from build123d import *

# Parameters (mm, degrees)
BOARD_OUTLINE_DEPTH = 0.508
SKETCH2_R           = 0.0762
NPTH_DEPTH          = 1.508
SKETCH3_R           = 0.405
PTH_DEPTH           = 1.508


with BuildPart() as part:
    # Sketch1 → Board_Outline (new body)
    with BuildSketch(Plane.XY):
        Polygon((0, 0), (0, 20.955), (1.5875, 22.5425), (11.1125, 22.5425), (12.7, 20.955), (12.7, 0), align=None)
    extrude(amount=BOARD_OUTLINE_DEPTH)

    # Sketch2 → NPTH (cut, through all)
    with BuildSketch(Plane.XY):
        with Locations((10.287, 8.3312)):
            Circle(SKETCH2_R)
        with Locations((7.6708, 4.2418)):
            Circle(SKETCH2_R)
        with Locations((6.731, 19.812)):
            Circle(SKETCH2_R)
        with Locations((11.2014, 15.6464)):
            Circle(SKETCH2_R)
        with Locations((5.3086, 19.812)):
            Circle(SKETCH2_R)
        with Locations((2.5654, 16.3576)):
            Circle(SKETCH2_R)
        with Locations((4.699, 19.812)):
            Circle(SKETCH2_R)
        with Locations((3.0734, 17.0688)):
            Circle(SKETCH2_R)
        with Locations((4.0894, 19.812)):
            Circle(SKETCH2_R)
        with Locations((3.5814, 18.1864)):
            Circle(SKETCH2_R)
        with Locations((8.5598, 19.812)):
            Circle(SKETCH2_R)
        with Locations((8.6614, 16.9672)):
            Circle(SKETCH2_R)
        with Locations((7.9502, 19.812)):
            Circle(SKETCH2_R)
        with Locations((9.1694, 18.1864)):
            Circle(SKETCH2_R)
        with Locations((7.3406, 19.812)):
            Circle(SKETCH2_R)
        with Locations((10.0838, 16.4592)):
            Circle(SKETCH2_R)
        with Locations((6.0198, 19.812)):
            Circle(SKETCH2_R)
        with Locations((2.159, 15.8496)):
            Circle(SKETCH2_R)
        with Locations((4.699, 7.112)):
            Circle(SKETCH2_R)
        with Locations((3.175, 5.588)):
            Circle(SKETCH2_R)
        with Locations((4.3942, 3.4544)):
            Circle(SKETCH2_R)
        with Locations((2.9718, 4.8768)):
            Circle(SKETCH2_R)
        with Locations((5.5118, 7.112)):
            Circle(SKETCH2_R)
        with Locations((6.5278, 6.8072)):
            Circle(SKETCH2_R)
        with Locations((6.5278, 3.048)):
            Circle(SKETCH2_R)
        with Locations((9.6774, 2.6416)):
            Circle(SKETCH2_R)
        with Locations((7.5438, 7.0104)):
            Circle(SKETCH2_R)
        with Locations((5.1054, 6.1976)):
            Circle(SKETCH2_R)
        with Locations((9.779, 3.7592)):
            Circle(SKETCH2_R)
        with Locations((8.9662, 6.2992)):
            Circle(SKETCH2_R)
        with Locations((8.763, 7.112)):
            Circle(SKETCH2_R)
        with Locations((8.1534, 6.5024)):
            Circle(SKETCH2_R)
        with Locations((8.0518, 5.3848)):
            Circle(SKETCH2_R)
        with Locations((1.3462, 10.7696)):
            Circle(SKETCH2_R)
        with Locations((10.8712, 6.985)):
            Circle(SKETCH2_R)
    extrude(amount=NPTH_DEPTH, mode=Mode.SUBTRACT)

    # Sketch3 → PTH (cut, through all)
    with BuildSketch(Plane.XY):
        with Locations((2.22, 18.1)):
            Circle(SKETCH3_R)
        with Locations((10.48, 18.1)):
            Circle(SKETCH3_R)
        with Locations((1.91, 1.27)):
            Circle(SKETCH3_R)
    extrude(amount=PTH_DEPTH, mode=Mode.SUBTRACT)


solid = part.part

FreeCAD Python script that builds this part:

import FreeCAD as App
import Part
import Sketcher
from FreeCAD import Vector
Q = App.Units.Quantity


def add_polygon(sketch, points):
    """Adds a closed chain of lines whose ends are joined by coincident constraints."""
    first, n = sketch.GeometryCount, len(points)
    for a, b in zip(points, points[1:] + points[:1]):
        sketch.addGeometry(Part.LineSegment(App.Vector(*a, 0), App.Vector(*b, 0)), False)
    for i in range(n):
        sketch.addConstraint(Sketcher.Constraint("Coincident", first + i, 2, first + (i + 1) % n, 1))

doc = App.newDocument("Part")
params = doc.addObject("Spreadsheet::Sheet", "Params")
for row, (alias, value) in enumerate([
    ("sketch1_width", "0.5 in"),
    ("sketch1_width2", "0.375 in"),
    ("sketch1_height", "0.825 in"),
    ("pad1_length", "0.02 in"),
    ("sketch2_diameter", "0.006 in"),
], start=1):
    params.set(f"A{row}", alias)
    params.set(f"B{row}", "=" + value)
    params.setAlias(f"B{row}", alias)

body = doc.addObject("PartDesign::Body", "Body")

# Sketch on XY plane
sketch1 = body.newObject("Sketcher::SketchObject", "Sketch")
sketch1.AttachmentSupport = (doc.getObject("XY_Plane"), [""])
sketch1.MapMode = "FlatFace"
add_polygon(sketch1, [(0, 21), (0, 0), (12.7, 0), (12.7, 21), (11.1, 22.5), (1.6, 22.5)])  # lines 0-5
sketch1.addConstraint(Sketcher.Constraint("Vertical", 0))
sketch1.addConstraint(Sketcher.Constraint("Horizontal", 1))
sketch1.addConstraint(Sketcher.Constraint("Vertical", 2))
sketch1.addConstraint(Sketcher.Constraint("Horizontal", 4))
sketch1.addConstraint(Sketcher.Constraint("Coincident", 0, 2, -1, 1))
sketch1.addConstraint(Sketcher.Constraint("Perpendicular", 3, 5))
sketch1.addConstraint(Sketcher.Constraint("Horizontal", 2, 2, 5, 2))
sketch1.addConstraint(Sketcher.Constraint("Equal", 3, 5))
sketch1.addConstraint(Sketcher.Constraint("DistanceX", 1, 1, 1, 2, Q("0.5 in")))
sketch1.addConstraint(Sketcher.Constraint("DistanceX", 4, 2, 4, 1, Q("0.375 in")))
sketch1.addConstraint(Sketcher.Constraint("DistanceY", 0, 2, 0, 1, Q("0.825 in")))
sketch1.setExpression("Constraints[14]", "Params.sketch1_width")
sketch1.setExpression("Constraints[15]", "Params.sketch1_width2")
sketch1.setExpression("Constraints[16]", "Params.sketch1_height")
pad1 = body.newObject("PartDesign::Pad", "Pad")
pad1.Profile = sketch1
pad1.setExpression("Length", "Params.pad1_length")

# Sketch on XY plane
sketch2 = body.newObject("Sketcher::SketchObject", "Sketch001")
sketch2.AttachmentSupport = (doc.getObject("XY_Plane"), [""])
sketch2.MapMode = "FlatFace"
sketch2.addGeometry(Part.Circle(Vector(10.29, 8.33, 0), Vector(0, 0, 1), 0.08), False)
sketch2.addGeometry(Part.Circle(Vector(7.67, 4.24, 0), Vector(0, 0, 1), 0.08), False)
sketch2.addGeometry(Part.Circle(Vector(6.73, 19.81, 0), Vector(0, 0, 1), 0.08), False)
sketch2.addGeometry(Part.Circle(Vector(11.2, 15.65, 0), Vector(0, 0, 1), 0.08), False)
sketch2.addGeometry(Part.Circle(Vector(5.31, 19.81, 0), Vector(0, 0, 1), 0.08), False)
sketch2.addGeometry(Part.Circle(Vector(2.57, 16.36, 0), Vector(0, 0, 1), 0.08), False)
sketch2.addGeometry(Part.Circle(Vector(4.7, 19.81, 0), Vector(0, 0, 1), 0.08), False)
sketch2.addGeometry(Part.Circle(Vector(3.07, 17.07, 0), Vector(0, 0, 1), 0.08), False)
sketch2.addGeometry(Part.Circle(Vector(4.09, 19.81, 0), Vector(0, 0, 1), 0.08), False)
sketch2.addGeometry(Part.Circle(Vector(3.58, 18.19, 0), Vector(0, 0, 1), 0.08), False)
sketch2.addGeometry(Part.Circle(Vector(8.56, 19.81, 0), Vector(0, 0, 1), 0.08), False)
sketch2.addGeometry(Part.Circle(Vector(8.66, 16.97, 0), Vector(0, 0, 1), 0.08), False)
sketch2.addGeometry(Part.Circle(Vector(7.95, 19.81, 0), Vector(0, 0, 1), 0.08), False)
sketch2.addGeometry(Part.Circle(Vector(9.17, 18.19, 0), Vector(0, 0, 1), 0.08), False)
sketch2.addGeometry(Part.Circle(Vector(7.34, 19.81, 0), Vector(0, 0, 1), 0.08), False)
sketch2.addGeometry(Part.Circle(Vector(10.08, 16.46, 0), Vector(0, 0, 1), 0.08), False)
sketch2.addGeometry(Part.Circle(Vector(6.02, 19.81, 0), Vector(0, 0, 1), 0.08), False)
sketch2.addGeometry(Part.Circle(Vector(2.16, 15.85, 0), Vector(0, 0, 1), 0.08), False)
sketch2.addGeometry(Part.Circle(Vector(4.7, 7.11, 0), Vector(0, 0, 1), 0.08), False)
sketch2.addGeometry(Part.Circle(Vector(3.17, 5.59, 0), Vector(0, 0, 1), 0.08), False)
sketch2.addGeometry(Part.Circle(Vector(4.39, 3.45, 0), Vector(0, 0, 1), 0.08), False)
sketch2.addGeometry(Part.Circle(Vector(2.97, 4.88, 0), Vector(0, 0, 1), 0.08), False)
sketch2.addGeometry(Part.Circle(Vector(5.51, 7.11, 0), Vector(0, 0, 1), 0.08), False)
sketch2.addGeometry(Part.Circle(Vector(6.53, 6.81, 0), Vector(0, 0, 1), 0.08), False)
sketch2.addGeometry(Part.Circle(Vector(6.53, 3.05, 0), Vector(0, 0, 1), 0.08), False)
sketch2.addGeometry(Part.Circle(Vector(9.68, 2.64, 0), Vector(0, 0, 1), 0.08), False)
sketch2.addGeometry(Part.Circle(Vector(7.54, 7.01, 0), Vector(0, 0, 1), 0.08), False)
sketch2.addGeometry(Part.Circle(Vector(5.11, 6.2, 0), Vector(0, 0, 1), 0.08), False)
sketch2.addGeometry(Part.Circle(Vector(9.78, 3.76, 0), Vector(0, 0, 1), 0.08), False)
sketch2.addGeometry(Part.Circle(Vector(8.97, 6.3, 0), Vector(0, 0, 1), 0.08), False)
sketch2.addGeometry(Part.Circle(Vector(8.76, 7.11, 0), Vector(0, 0, 1), 0.08), False)
sketch2.addGeometry(Part.Circle(Vector(8.15, 6.5, 0), Vector(0, 0, 1), 0.08), False)
sketch2.addGeometry(Part.Circle(Vector(8.05, 5.38, 0), Vector(0, 0, 1), 0.08), False)
sketch2.addGeometry(Part.Circle(Vector(1.35, 10.77, 0), Vector(0, 0, 1), 0.08), False)
sketch2.addGeometry(Part.Circle(Vector(10.87, 6.99, 0), Vector(0, 0, 1), 0.08), False)
sketch2.addConstraint(Sketcher.Constraint("Equal", 0, 1))
sketch2.addConstraint(Sketcher.Constraint("Equal", 1, 2))
sketch2.addConstraint(Sketcher.Constraint("Equal", 2, 3))
sketch2.addConstraint(Sketcher.Constraint("Equal", 3, 4))
sketch2.addConstraint(Sketcher.Constraint("Equal", 4, 5))
sketch2.addConstraint(Sketcher.Constraint("Equal", 5, 6))
sketch2.addConstraint(Sketcher.Constraint("Equal", 6, 7))
sketch2.addConstraint(Sketcher.Constraint("Equal", 7, 8))
sketch2.addConstraint(Sketcher.Constraint("Equal", 8, 9))
sketch2.addConstraint(Sketcher.Constraint("Equal", 9, 10))
sketch2.addConstraint(Sketcher.Constraint("Equal", 10, 11))
sketch2.addConstraint(Sketcher.Constraint("Equal", 11, 12))
sketch2.addConstraint(Sketcher.Constraint("Equal", 12, 13))
sketch2.addConstraint(Sketcher.Constraint("Equal", 13, 14))
sketch2.addConstraint(Sketcher.Constraint("Equal", 14, 15))
sketch2.addConstraint(Sketcher.Constraint("Equal", 15, 16))
sketch2.addConstraint(Sketcher.Constraint("Equal", 16, 17))
sketch2.addConstraint(Sketcher.Constraint("Equal", 17, 18))
sketch2.addConstraint(Sketcher.Constraint("Equal", 18, 19))
sketch2.addConstraint(Sketcher.Constraint("Equal", 19, 20))
sketch2.addConstraint(Sketcher.Constraint("Equal", 20, 21))
sketch2.addConstraint(Sketcher.Constraint("Equal", 21, 22))
sketch2.addConstraint(Sketcher.Constraint("Equal", 22, 23))
sketch2.addConstraint(Sketcher.Constraint("Equal", 23, 24))
sketch2.addConstraint(Sketcher.Constraint("Equal", 24, 25))
sketch2.addConstraint(Sketcher.Constraint("Equal", 25, 26))
sketch2.addConstraint(Sketcher.Constraint("Equal", 26, 27))
sketch2.addConstraint(Sketcher.Constraint("Equal", 27, 28))
sketch2.addConstraint(Sketcher.Constraint("Equal", 28, 29))
sketch2.addConstraint(Sketcher.Constraint("Equal", 29, 30))
sketch2.addConstraint(Sketcher.Constraint("Equal", 30, 31))
sketch2.addConstraint(Sketcher.Constraint("Equal", 31, 32))
sketch2.addConstraint(Sketcher.Constraint("Equal", 32, 33))
sketch2.addConstraint(Sketcher.Constraint("Equal", 33, 34))
sketch2.addConstraint(Sketcher.Constraint("Horizontal", 2, 3, 4, 3))
sketch2.addConstraint(Sketcher.Constraint("Horizontal", 4, 3, 6, 3))
sketch2.addConstraint(Sketcher.Constraint("Horizontal", 6, 3, 8, 3))
sketch2.addConstraint(Sketcher.Constraint("Horizontal", 8, 3, 10, 3))
sketch2.addConstraint(Sketcher.Constraint("Horizontal", 10, 3, 12, 3))
sketch2.addConstraint(Sketcher.Constraint("Horizontal", 9, 3, 13, 3))
sketch2.addConstraint(Sketcher.Constraint("Horizontal", 12, 3, 14, 3))
sketch2.addConstraint(Sketcher.Constraint("Horizontal", 14, 3, 16, 3))
sketch2.addConstraint(Sketcher.Constraint("Horizontal", 18, 3, 22, 3))
sketch2.addConstraint(Sketcher.Constraint("Horizontal", 22, 3, 30, 3))
sketch2.addConstraint(Sketcher.Constraint("Vertical", 6, 3, 18, 3))
sketch2.addConstraint(Sketcher.Constraint("Vertical", 23, 3, 24, 3))
sketch2.addConstraint(Sketcher.Constraint("Diameter", 0, Q("0.006 in")))
sketch2.addConstraint(Sketcher.Constraint("DistanceX", 11, 3, 3, 3, Q("0.1 in")))
sketch2.addConstraint(Sketcher.Constraint("DistanceY", 3, 3, 13, 3, Q("0.1 in")))
sketch2.addConstraint(Sketcher.Constraint("DistanceX", 17, 3, 6, 3, Q("0.1 in")))
sketch2.addConstraint(Sketcher.Constraint("DistanceX", 21, 3, 22, 3, Q("0.1 in")))
sketch2.addConstraint(Sketcher.Constraint("DistanceY", 28, 3, 29, 3, Q("0.1 in")))
sketch2.addConstraint(Sketcher.Constraint("DistanceY", 33, 3, 17, 3, Q("0.2 in")))
sketch2.addConstraint(Sketcher.Constraint("DistanceY", -1, 1, 2, 3, Q("0.78 in")))
sketch2.addConstraint(Sketcher.Constraint("DistanceY", -1, 1, 18, 3, Q("0.28 in")))
sketch2.addConstraint(Sketcher.Constraint("DistanceY", -1, 1, 19, 3, Q("0.22 in")))
sketch2.addConstraint(Sketcher.Constraint("DistanceY", -1, 1, 24, 3, Q("0.12 in")))
sketch2.addConstraint(Sketcher.Constraint("DistanceX", 2, 3, 0, 3, Q("0.14 in")))
sketch2.addConstraint(Sketcher.Constraint("DistanceX", 5, 3, 3, 3, Q("0.34 in")))
sketch2.addConstraint(Sketcher.Constraint("DistanceX", 6, 3, 2, 3, Q("0.08 in")))
sketch2.addConstraint(Sketcher.Constraint("DistanceX", 5, 3, 7, 3, Q("0.02 in")))
sketch2.addConstraint(Sketcher.Constraint("DistanceX", 7, 3, 8, 3, Q("0.04 in")))
sketch2.addConstraint(Sketcher.Constraint("DistanceX", 7, 3, 9, 3, Q("0.02 in")))
sketch2.addConstraint(Sketcher.Constraint("DistanceX", 11, 3, 13, 3, Q("0.02 in")))
sketch2.addConstraint(Sketcher.Constraint("DistanceX", 4, 3, 14, 3, Q("0.08 in")))
sketch2.addConstraint(Sketcher.Constraint("DistanceY", 15, 3, 11, 3, Q("0.02 in")))
sketch2.addConstraint(Sketcher.Constraint("DistanceX", 10, 3, 15, 3, Q("0.06 in")))
sketch2.addConstraint(Sketcher.Constraint("DistanceY", 17, 3, 5, 3, Q("0.02 in")))
sketch2.addConstraint(Sketcher.Constraint("DistanceX", 19, 3, 18, 3, Q("0.06 in")))
sketch2.addConstraint(Sketcher.Constraint("DistanceX", 22, 3, 23, 3, Q("0.04 in")))
sketch2.addConstraint(Sketcher.Constraint("DistanceX", 23, 3, 26, 3, Q("0.04 in")))
sketch2.addConstraint(Sketcher.Constraint("DistanceY", 28, 3, 23, 3, Q("0.12 in")))
sketch2.addConstraint(Sketcher.Constraint("DistanceY", 29, 3, 0, 3, Q("0.08 in")))
sketch2.addConstraint(Sketcher.Constraint("DistanceX", 30, 3, 0, 3, Q("0.06 in")))
sketch2.addConstraint(Sketcher.Constraint("DistanceY", 31, 3, 26, 3, Q("0.02 in")))
sketch2.addConstraint(Sketcher.Constraint("DistanceX", 26, 3, 32, 3, Q("0.02 in")))
sketch2.addConstraint(Sketcher.Constraint("DistanceX", -1, 1, 0, 3, Q("0.405 in")))
sketch2.addConstraint(Sketcher.Constraint("DistanceY", -1, 1, 0, 3, Q("0.328 in")))
sketch2.addConstraint(Sketcher.Constraint("DistanceX", -1, 1, 1, 3, Q("0.302 in")))
sketch2.addConstraint(Sketcher.Constraint("DistanceY", -1, 1, 1, 3, Q("0.167 in")))
sketch2.addConstraint(Sketcher.Constraint("DistanceX", -1, 1, 3, 3, Q("0.441 in")))
sketch2.addConstraint(Sketcher.Constraint("DistanceY", -1, 1, 3, 3, Q("0.616 in")))
sketch2.addConstraint(Sketcher.Constraint("DistanceX", -1, 1, 4, 3, Q("0.209 in")))
sketch2.addConstraint(Sketcher.Constraint("DistanceY", -1, 1, 5, 3, Q("0.644 in")))
sketch2.addConstraint(Sketcher.Constraint("DistanceY", -1, 1, 7, 3, Q("0.672 in")))
sketch2.addConstraint(Sketcher.Constraint("DistanceX", -1, 1, 10, 3, Q("0.337 in")))
sketch2.addConstraint(Sketcher.Constraint("DistanceY", -1, 1, 11, 3, Q("0.668 in")))
sketch2.addConstraint(Sketcher.Constraint("DistanceX", -1, 1, 12, 3, Q("0.313 in")))
sketch2.addConstraint(Sketcher.Constraint("DistanceX", -1, 1, 16, 3, Q("0.237 in")))
sketch2.addConstraint(Sketcher.Constraint("DistanceX", -1, 1, 20, 3, Q("0.173 in")))
sketch2.addConstraint(Sketcher.Constraint("DistanceY", -1, 1, 20, 3, Q("0.136 in")))
sketch2.addConstraint(Sketcher.Constraint("DistanceX", -1, 1, 21, 3, Q("0.117 in")))
sketch2.addConstraint(Sketcher.Constraint("DistanceY", -1, 1, 21, 3, Q("0.192 in")))
sketch2.addConstraint(Sketcher.Constraint("DistanceX", -1, 1, 25, 3, Q("0.381 in")))
sketch2.addConstraint(Sketcher.Constraint("DistanceY", -1, 1, 25, 3, Q("0.104 in")))
sketch2.addConstraint(Sketcher.Constraint("DistanceY", -1, 1, 26, 3, Q("0.276 in")))
sketch2.addConstraint(Sketcher.Constraint("DistanceX", -1, 1, 27, 3, Q("0.201 in")))
sketch2.addConstraint(Sketcher.Constraint("DistanceY", -1, 1, 27, 3, Q("0.244 in")))
sketch2.addConstraint(Sketcher.Constraint("DistanceX", -1, 1, 28, 3, Q("0.385 in")))
sketch2.addConstraint(Sketcher.Constraint("DistanceX", -1, 1, 29, 3, Q("0.353 in")))
sketch2.addConstraint(Sketcher.Constraint("DistanceX", -1, 1, 31, 3, Q("0.321 in")))
sketch2.addConstraint(Sketcher.Constraint("DistanceY", -1, 1, 32, 3, Q("0.212 in")))
sketch2.addConstraint(Sketcher.Constraint("DistanceX", -1, 1, 33, 3, Q("0.053 in")))
sketch2.addConstraint(Sketcher.Constraint("DistanceX", -1, 1, 34, 3, Q("0.428 in")))
sketch2.addConstraint(Sketcher.Constraint("DistanceY", -1, 1, 34, 3, Q("0.275 in")))
sketch2.setExpression("Constraints[46]", "Params.sketch2_diameter")
pocket1 = body.newObject("PartDesign::Pocket", "Pocket")
pocket1.Profile = sketch2
pocket1.Type = "ThroughAll"
pocket1.Reversed = True

# Sketch on XY plane
sketch3 = body.newObject("Sketcher::SketchObject", "Sketch002")
sketch3.AttachmentSupport = (doc.getObject("XY_Plane"), [""])
sketch3.MapMode = "FlatFace"
sketch3.addGeometry(Part.Circle(Vector(2.22, 18.1, 0), Vector(0, 0, 1), 0.41), False)
sketch3.addGeometry(Part.Circle(Vector(10.48, 18.1, 0), Vector(0, 0, 1), 0.41), False)
sketch3.addGeometry(Part.Circle(Vector(1.91, 1.27, 0), Vector(0, 0, 1), 0.41), False)
sketch3.addConstraint(Sketcher.Constraint("Equal", 0, 1))
sketch3.addConstraint(Sketcher.Constraint("Equal", 1, 2))
sketch3.addConstraint(Sketcher.Constraint("Horizontal", 0, 3, 1, 3))
sketch3.addConstraint(Sketcher.Constraint("Diameter", 0, 0.81))
sketch3.addConstraint(Sketcher.Constraint("DistanceY", -1, 1, 2, 3, Q("0.05 in")))
sketch3.addConstraint(Sketcher.Constraint("DistanceX", -1, 1, 0, 3, 2.22))
sketch3.addConstraint(Sketcher.Constraint("DistanceY", -1, 1, 0, 3, 18.1))
sketch3.addConstraint(Sketcher.Constraint("DistanceX", -1, 1, 1, 3, 10.48))
sketch3.addConstraint(Sketcher.Constraint("DistanceX", -1, 1, 2, 3, 1.91))
pocket2 = body.newObject("PartDesign::Pocket", "Pocket001")
pocket2.Profile = sketch3
pocket2.Type = "ThroughAll"
pocket2.Reversed = True

doc.recompute()
